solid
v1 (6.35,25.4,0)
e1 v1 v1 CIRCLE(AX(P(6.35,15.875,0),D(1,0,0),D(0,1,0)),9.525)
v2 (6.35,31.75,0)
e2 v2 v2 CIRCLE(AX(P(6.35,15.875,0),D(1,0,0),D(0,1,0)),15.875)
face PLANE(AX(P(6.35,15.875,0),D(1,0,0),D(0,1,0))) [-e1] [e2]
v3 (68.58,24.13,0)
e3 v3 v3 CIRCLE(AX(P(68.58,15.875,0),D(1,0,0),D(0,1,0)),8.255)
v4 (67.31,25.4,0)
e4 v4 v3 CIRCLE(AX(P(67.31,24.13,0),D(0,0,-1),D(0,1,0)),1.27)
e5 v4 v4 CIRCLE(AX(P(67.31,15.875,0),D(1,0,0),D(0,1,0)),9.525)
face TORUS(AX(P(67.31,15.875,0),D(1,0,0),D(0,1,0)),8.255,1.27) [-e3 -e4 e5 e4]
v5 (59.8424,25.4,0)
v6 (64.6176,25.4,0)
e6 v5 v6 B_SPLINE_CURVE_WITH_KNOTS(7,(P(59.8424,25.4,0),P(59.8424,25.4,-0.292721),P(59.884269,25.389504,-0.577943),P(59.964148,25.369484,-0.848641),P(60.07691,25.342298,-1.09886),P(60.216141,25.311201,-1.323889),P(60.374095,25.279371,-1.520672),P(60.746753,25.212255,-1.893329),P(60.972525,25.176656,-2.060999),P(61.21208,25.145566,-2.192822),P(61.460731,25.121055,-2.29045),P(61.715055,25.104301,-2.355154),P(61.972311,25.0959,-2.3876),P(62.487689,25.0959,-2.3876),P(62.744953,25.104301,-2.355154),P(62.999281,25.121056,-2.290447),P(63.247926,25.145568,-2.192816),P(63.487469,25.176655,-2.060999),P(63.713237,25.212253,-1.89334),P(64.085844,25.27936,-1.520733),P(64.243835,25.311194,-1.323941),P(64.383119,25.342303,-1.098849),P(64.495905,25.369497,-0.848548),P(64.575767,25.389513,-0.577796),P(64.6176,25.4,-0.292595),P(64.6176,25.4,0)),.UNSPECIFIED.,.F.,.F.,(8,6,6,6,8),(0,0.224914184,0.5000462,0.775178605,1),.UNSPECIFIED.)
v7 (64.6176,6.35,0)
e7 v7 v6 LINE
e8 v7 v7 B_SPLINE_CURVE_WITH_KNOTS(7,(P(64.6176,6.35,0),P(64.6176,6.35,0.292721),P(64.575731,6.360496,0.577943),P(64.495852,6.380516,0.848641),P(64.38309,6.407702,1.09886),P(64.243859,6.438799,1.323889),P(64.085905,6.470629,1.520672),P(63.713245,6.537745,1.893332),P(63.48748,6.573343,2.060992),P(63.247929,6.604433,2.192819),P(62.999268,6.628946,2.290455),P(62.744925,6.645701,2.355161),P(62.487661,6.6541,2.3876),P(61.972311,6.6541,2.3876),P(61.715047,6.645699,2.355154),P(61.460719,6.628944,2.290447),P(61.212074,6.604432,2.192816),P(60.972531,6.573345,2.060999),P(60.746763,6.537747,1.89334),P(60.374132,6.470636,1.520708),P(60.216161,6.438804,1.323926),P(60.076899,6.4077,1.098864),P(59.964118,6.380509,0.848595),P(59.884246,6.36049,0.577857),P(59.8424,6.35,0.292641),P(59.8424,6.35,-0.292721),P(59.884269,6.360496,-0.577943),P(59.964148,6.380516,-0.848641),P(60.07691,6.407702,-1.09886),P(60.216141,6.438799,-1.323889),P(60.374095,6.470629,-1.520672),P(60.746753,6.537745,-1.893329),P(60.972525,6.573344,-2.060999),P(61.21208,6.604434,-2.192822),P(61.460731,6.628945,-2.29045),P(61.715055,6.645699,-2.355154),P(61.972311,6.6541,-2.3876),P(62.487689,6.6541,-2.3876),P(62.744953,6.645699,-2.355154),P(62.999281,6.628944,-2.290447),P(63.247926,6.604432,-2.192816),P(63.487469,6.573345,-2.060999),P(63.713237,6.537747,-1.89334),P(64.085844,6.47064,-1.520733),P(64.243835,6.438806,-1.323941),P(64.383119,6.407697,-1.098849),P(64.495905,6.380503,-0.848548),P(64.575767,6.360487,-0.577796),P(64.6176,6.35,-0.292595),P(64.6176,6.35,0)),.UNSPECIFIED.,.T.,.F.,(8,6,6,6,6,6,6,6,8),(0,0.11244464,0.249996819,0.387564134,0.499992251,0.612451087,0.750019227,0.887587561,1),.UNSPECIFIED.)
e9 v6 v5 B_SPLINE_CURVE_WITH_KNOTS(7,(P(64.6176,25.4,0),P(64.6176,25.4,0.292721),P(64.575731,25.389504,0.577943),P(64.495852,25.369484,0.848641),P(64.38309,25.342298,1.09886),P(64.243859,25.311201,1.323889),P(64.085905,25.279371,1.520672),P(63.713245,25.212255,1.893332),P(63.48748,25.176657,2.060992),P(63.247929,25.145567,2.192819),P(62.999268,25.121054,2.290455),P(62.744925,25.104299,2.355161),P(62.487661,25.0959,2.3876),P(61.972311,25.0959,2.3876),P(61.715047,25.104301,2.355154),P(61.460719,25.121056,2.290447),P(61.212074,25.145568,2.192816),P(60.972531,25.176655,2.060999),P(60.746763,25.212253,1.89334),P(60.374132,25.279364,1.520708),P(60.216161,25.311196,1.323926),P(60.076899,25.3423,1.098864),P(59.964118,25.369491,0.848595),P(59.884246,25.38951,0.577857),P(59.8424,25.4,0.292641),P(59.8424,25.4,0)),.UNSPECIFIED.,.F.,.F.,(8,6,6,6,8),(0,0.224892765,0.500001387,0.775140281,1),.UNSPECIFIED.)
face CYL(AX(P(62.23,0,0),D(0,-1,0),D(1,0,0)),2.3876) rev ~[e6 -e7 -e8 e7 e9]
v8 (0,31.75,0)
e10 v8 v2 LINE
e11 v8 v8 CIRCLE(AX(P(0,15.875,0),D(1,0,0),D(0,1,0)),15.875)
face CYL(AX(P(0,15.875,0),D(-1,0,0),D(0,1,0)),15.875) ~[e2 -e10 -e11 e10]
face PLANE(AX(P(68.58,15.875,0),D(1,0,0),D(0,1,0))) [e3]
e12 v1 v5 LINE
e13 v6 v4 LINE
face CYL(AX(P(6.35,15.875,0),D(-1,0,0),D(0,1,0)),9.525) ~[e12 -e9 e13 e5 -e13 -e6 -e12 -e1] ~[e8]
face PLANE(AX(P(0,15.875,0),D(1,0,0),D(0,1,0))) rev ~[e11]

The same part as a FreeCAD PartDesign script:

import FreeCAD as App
import Part
import Sketcher

V = App.Vector
Q = App.Units.Quantity


def edges_at(feature, points):
    """Names of the edges that pass closest to the given points."""
    edges = feature.Shape.Edges
    near = lambda p: min(range(len(edges)), key=lambda i: edges[i].distToShape(Part.Vertex(*p))[0])
    return sorted({f"Edge{near(p) + 1}" for p in points})

doc = App.newDocument("Part")
params = doc.addObject("Spreadsheet::Sheet", "Params")
for row, (alias, value) in enumerate([
    ("sketch1_diameter", "1.25 in"),
    ("pad1_length", "0.25 in"),
    ("sketch2_diameter", "0.75 in"),
    ("pad2_length", "2.45 in"),
    ("fillet_radius", "0.05 in"),
    ("sketch3_diameter", "0.188 in"),
    ("pocket1_length", "2 in"),
], start=1):
    params.set(f"A{row}", alias)
    params.set(f"B{row}", "=" + value)
    params.setAlias(f"B{row}", alias)

body = doc.addObject("PartDesign::Body", "Body")

sketch1 = body.newObject("Sketcher::SketchObject", "Sketch")
sketch1.AttachmentSupport = (doc.getObject("YZ_Plane"), [""])
sketch1.MapMode = "FlatFace"
sketch1.addGeometry(Part.Circle(V(16, 0, 0), V(0, 0, 1), 16), False)
sketch1.addConstraint(Sketcher.Constraint("PointOnObject", 0, 3, -1))
sketch1.addConstraint(Sketcher.Constraint("Diameter", 0, Q("1.25 in")))
sketch1.addConstraint(Sketcher.Constraint("DistanceX", -1, 1, 0, 3, Q("0.625 in")))
sketch1.setExpression("Constraints[1]", "Params.sketch1_diameter")
pad1 = body.newObject("PartDesign::Pad", "Pad")
pad1.Profile = sketch1
pad1.setExpression("Length", "Params.pad1_length")

sketch2 = body.newObject("Sketcher::SketchObject", "Sketch001")
sketch2.AttachmentSupport = (doc.getObject("YZ_Plane"), [""])
sketch2.MapMode = "FlatFace"
sketch2.AttachmentOffset = App.Placement(V(0, 0, 0.25 * 25.4), App.Rotation())
sketch2.addGeometry(Part.Circle(V(16, 0, 0), V(0, 0, 1), 10), False)
sketch2.addConstraint(Sketcher.Constraint("PointOnObject", 0, 3, -1))
sketch2.addConstraint(Sketcher.Constraint("Diameter", 0, Q("0.75 in")))
sketch2.addConstraint(Sketcher.Constraint("DistanceX", -1, 1, 0, 3, Q("0.625 in")))
sketch2.setExpression("Constraints[1]", "Params.sketch2_diameter")
pad2 = body.newObject("PartDesign::Pad", "Pad001")
pad2.Profile = sketch2
pad2.setExpression("Length", "Params.pad2_length")
doc.recompute()

fillet = body.newObject("PartDesign::Fillet", "Fillet")
fillet.Base = (pad2, edges_at(pad2, [(68.58, 6.35, 0)]))
fillet.setExpression("Radius", "Params.fillet_radius")

sketch3 = body.newObject("Sketcher::SketchObject", "Sketch002")
sketch3.AttachmentSupport = (doc.getObject("XZ_Plane"), [""])
sketch3.MapMode = "FlatFace"
sketch3.addGeometry(Part.Circle(V(62.2, 0, 0), V(0, 0, 1), 2.4), False)
sketch3.addConstraint(Sketcher.Constraint("PointOnObject", 0, 3, -1))
sketch3.addConstraint(Sketcher.Constraint("Diameter", 0, Q("0.188 in")))
sketch3.addConstraint(Sketcher.Constraint("DistanceX", -1, 1, 0, 3, Q("2.45 in")))
sketch3.setExpression("Constraints[1]", "Params.sketch3_diameter")
pocket1 = body.newObject("PartDesign::Pocket", "Pocket")
pocket1.Profile = sketch3
pocket1.setExpression("Length", "Params.pocket1_length")

doc.recompute()
